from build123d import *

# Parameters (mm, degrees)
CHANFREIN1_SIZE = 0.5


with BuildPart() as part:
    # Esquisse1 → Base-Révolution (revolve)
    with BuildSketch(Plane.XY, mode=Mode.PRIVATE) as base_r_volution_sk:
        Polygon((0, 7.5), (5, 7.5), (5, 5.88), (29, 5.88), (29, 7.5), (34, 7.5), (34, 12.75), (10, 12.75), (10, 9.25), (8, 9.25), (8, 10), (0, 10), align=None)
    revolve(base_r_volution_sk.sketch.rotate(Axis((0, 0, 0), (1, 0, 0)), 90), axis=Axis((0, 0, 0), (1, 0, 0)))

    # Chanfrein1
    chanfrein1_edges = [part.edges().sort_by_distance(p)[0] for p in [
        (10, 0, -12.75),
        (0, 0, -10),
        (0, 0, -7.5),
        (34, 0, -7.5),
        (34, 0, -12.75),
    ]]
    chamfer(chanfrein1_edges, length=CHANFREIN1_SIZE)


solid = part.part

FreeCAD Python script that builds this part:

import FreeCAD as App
import Part
import Sketcher


def edges_at(feature, points):
    """Names of the edges that pass closest to the given points."""
    edges = feature.Shape.Edges
    near = lambda p: min(range(len(edges)), key=lambda i: edges[i].distToShape(Part.Vertex(*p))[0])
    return sorted({f"Edge{near(p) + 1}" for p in points})


def add_polygon(sketch, points):
    """Adds a closed chain of lines whose ends are joined by coincident constraints."""
    first, n = sketch.GeometryCount, len(points)
    for a, b in zip(points, points[1:] + points[:1]):
        sketch.addGeometry(Part.LineSegment(App.Vector(*a, 0), App.Vector(*b, 0)), False)
    for i in range(n):
        sketch.addConstraint(Sketcher.Constraint("Coincident", first + i, 2, first + (i + 1) % n, 1))

doc = App.newDocument("Part")
body = doc.addObject("PartDesign::Body", "Body")

# Sketch on XY plane
sketch1 = body.newObject("Sketcher::SketchObject", "Sketch")
sketch1.AttachmentSupport = (doc.getObject("XY_Plane"), [""])
sketch1.MapMode = "FlatFace"
add_polygon(sketch1, [(0, 7.5), (5, 7.5), (5, 5.88), (29, 5.88), (29, 7.5), (34, 7.5), (34, 12.75), (10, 12.75), (10, 9.25), (8, 9.25), (8, 10), (0, 10)])  # lines 0-11
sketch1.addConstraint(Sketcher.Constraint("Horizontal", 0))
sketch1.addConstraint(Sketcher.Constraint("Vertical", 1))
sketch1.addConstraint(Sketcher.Constraint("Horizontal", 2))
sketch1.addConstraint(Sketcher.Constraint("Vertical", 3))
sketch1.addConstraint(Sketcher.Constraint("Horizontal", 4))
sketch1.addConstraint(Sketcher.Constraint("Vertical", 5))
sketch1.addConstraint(Sketcher.Constraint("Horizontal", 6))
sketch1.addConstraint(Sketcher.Constraint("Vertical", 7))
sketch1.addConstraint(Sketcher.Constraint("Horizontal", 8))
sketch1.addConstraint(Sketcher.Constraint("Vertical", 9))
sketch1.addConstraint(Sketcher.Constraint("Horizontal", 10))
sketch1.addConstraint(Sketcher.Constraint("Vertical", 11))
sketch1.addConstraint(Sketcher.Constraint("PointOnObject", 10, 2, -2))
sketch1.addConstraint(Sketcher.Constraint("Horizontal", 0, 2, 3, 2))
sketch1.addConstraint(Sketcher.Constraint("Equal", 0, 4))
sketch1.addConstraint(Sketcher.Constraint("Equal", 2, 6))
sketch1.addConstraint(Sketcher.Constraint("DistanceX", 0, 1, 0, 2, 5.0))
sketch1.addConstraint(Sketcher.Constraint("DistanceX", 2, 1, 2, 2, 24.0))
sketch1.addConstraint(Sketcher.Constraint("DistanceX", 8, 2, 8, 1, 2.0))
sketch1.addConstraint(Sketcher.Constraint("DistanceY", 7, 2, 7, 1, 3.5))
sketch1.addConstraint(Sketcher.Constraint("DistanceY", 11, 2, 11, 1, 2.5))
sketch1.addConstraint(Sketcher.Constraint("DistanceY", -1, 1, 9, 2, 10.0))
sketch1.addConstraint(Sketcher.Constraint("DistanceY", 1, 2, 1, 1, 1.62))
sketch1.addConstraint(Sketcher.Constraint("DistanceY", 5, 1, 5, 2, 5.25))
revolution = body.newObject("PartDesign::Revolution", "Revolution")
revolution.Profile = sketch1
revolution.ReferenceAxis = (sketch1, ["H_Axis"])
revolution.Angle = 360
doc.recompute()

chamfer = body.newObject("PartDesign::Chamfer", "Chamfer")
chamfer.Base = (revolution, edges_at(revolution, [
    (10, 0, -12.75),
    (0, 0, -10),
    (0, 0, -7.5),
    (34, 0, -7.5),
    (34, 0, -12.75),
]))
chamfer.Size = 0.5

doc.recompute()
